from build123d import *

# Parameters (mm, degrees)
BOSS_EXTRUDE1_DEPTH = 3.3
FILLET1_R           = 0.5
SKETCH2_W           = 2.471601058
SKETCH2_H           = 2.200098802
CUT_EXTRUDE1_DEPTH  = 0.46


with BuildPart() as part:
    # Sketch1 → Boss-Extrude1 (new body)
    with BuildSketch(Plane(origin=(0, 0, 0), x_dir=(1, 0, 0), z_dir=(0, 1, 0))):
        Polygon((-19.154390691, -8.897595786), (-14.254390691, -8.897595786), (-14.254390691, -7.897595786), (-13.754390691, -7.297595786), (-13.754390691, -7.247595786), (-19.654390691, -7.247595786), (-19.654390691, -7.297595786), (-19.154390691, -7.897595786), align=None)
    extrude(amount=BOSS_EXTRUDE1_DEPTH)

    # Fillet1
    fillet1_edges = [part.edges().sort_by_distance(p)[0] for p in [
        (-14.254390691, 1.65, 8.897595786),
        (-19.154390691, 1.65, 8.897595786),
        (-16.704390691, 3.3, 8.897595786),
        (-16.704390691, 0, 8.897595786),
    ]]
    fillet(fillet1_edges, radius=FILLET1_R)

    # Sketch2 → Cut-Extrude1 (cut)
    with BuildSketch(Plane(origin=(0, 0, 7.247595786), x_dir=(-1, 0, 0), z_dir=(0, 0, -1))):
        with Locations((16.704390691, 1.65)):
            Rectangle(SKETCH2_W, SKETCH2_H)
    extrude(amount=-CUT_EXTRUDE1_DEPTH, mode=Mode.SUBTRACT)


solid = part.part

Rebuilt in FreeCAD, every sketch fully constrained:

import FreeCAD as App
import Part
import Sketcher

V = App.Vector


def edges_at(feature, points):
    """Names of the edges that pass closest to the given points."""
    edges = feature.Shape.Edges
    near = lambda p: min(range(len(edges)), key=lambda i: edges[i].distToShape(Part.Vertex(*p))[0])
    return sorted({f"Edge{near(p) + 1}" for p in points})


def add_polygon(sketch, points):
    """Adds a closed chain of lines whose ends are joined by coincident constraints."""
    first, n = sketch.GeometryCount, len(points)
    for a, b in zip(points, points[1:] + points[:1]):
        sketch.addGeometry(Part.LineSegment(App.Vector(*a, 0), App.Vector(*b, 0)), False)
    for i in range(n):
        sketch.addConstraint(Sketcher.Constraint("Coincident", first + i, 2, first + (i + 1) % n, 1))

doc = App.newDocument("Part")
params = doc.addObject("Spreadsheet::Sheet", "Params")
for row, (alias, value) in enumerate([
    ("sketch1_height", "1 mm"),
    ("sketch1_width", "4.9 mm"),
    ("sketch1_width2", "5.9 mm"),
    ("sketch1_height2", "0.05 mm"),
    ("pad1_length", "3.3 mm"),
    ("fillet_radius", "0.5 mm"),
    ("pocket1_length", "0.46 mm"),
], start=1):
    params.set(f"A{row}", alias)
    params.set(f"B{row}", "=" + value)
    params.setAlias(f"B{row}", alias)

body = doc.addObject("PartDesign::Body", "Body")

sketch1 = body.newObject("Sketcher::SketchObject", "Sketch")
sketch1.AttachmentSupport = (doc.getObject("XZ_Plane"), [""])
sketch1.MapMode = "FlatFace"
add_polygon(sketch1, [(-19.154, 8.898), (-14.254, 8.898), (-14.254, 7.898), (-13.754, 7.298), (-13.754, 7.248), (-19.654, 7.248), (-19.654, 7.298), (-19.154, 7.898)])
sketch1.addConstraint(Sketcher.Constraint("Horizontal", 0))
sketch1.addConstraint(Sketcher.Constraint("Vertical", 1))
sketch1.addConstraint(Sketcher.Constraint("Vertical", 3))
sketch1.addConstraint(Sketcher.Constraint("Horizontal", 4))
sketch1.addConstraint(Sketcher.Constraint("Vertical", 5))
sketch1.addConstraint(Sketcher.Constraint("Vertical", 7))
sketch1.addConstraint(Sketcher.Constraint("Horizontal", 2, 2, 5, 2))
sketch1.addConstraint(Sketcher.Constraint("Horizontal", 1, 2, 6, 2))
sketch1.addConstraint(Sketcher.Constraint("Equal", 2, 6))
sketch1.addConstraint(Sketcher.Constraint("DistanceY", 1, 2, 1, 1, 1.0))
sketch1.addConstraint(Sketcher.Constraint("DistanceX", 0, 1, 0, 2, 4.9))
sketch1.addConstraint(Sketcher.Constraint("DistanceX", 4, 2, 4, 1, 5.9))
sketch1.addConstraint(Sketcher.Constraint("DistanceY", 3, 2, 3, 1, 0.05))
sketch1.addConstraint(Sketcher.Constraint("DistanceY", 2, 2, 1, 2, 0.6))
sketch1.addConstraint(Sketcher.Constraint("DistanceX", 0, 2, -1, 1, 14.254391))
sketch1.addConstraint(Sketcher.Constraint("DistanceY", -1, 1, 0, 2, 8.897596))
sketch1.setExpression("Constraints[17]", "Params.sketch1_height")
sketch1.setExpression("Constraints[18]", "Params.sketch1_width")
sketch1.setExpression("Constraints[19]", "Params.sketch1_width2")
sketch1.setExpression("Constraints[20]", "Params.sketch1_height2")
pad1 = body.newObject("PartDesign::Pad", "Pad")
pad1.Profile = sketch1
pad1.setExpression("Length", "Params.pad1_length")
pad1.Reversed = True
doc.recompute()

fillet = body.newObject("PartDesign::Fillet", "Fillet")
fillet.Base = (pad1, edges_at(pad1, [
    (-14.254, 1.65, 8.898),
    (-19.154, 1.65, 8.898),
    (-16.704, 3.3, 8.898),
    (-16.704, 0, 8.898),
]))
fillet.setExpression("Radius", "Params.fillet_radius")

sketch2 = body.newObject("Sketcher::SketchObject", "Sketch001")
sketch2.AttachmentSupport = (doc.getObject("XY_Plane"), [""])
sketch2.MapMode = "FlatFace"
sketch2.AttachmentOffset = App.Placement(V(0, 0, 7.247596), App.Rotation())
add_polygon(sketch2, [(-15.5, 2.8), (-15.5, 0.5), (-17.9, 0.5), (-17.9, 2.8)])
sketch2.addConstraint(Sketcher.Constraint("Vertical", 0))
sketch2.addConstraint(Sketcher.Constraint("Horizontal", 1))
sketch2.addConstraint(Sketcher.Constraint("Vertical", 2))
sketch2.addConstraint(Sketcher.Constraint("Horizontal", 3))
sketch2.addConstraint(Sketcher.Constraint("DistanceX", 1, 2, 1, 1, 2.471601))
sketch2.addConstraint(Sketcher.Constraint("DistanceY", 0, 2, 0, 1, 2.200099))
sketch2.addConstraint(Sketcher.Constraint("DistanceX", 0, 2, -1, 1, 15.46859))
sketch2.addConstraint(Sketcher.Constraint("DistanceY", -1, 1, 0, 2, 0.549951))
pocket1 = body.newObject("PartDesign::Pocket", "Pocket")
pocket1.Profile = sketch2
pocket1.setExpression("Length", "Params.pocket1_length")
pocket1.Reversed = True

doc.recompute()
